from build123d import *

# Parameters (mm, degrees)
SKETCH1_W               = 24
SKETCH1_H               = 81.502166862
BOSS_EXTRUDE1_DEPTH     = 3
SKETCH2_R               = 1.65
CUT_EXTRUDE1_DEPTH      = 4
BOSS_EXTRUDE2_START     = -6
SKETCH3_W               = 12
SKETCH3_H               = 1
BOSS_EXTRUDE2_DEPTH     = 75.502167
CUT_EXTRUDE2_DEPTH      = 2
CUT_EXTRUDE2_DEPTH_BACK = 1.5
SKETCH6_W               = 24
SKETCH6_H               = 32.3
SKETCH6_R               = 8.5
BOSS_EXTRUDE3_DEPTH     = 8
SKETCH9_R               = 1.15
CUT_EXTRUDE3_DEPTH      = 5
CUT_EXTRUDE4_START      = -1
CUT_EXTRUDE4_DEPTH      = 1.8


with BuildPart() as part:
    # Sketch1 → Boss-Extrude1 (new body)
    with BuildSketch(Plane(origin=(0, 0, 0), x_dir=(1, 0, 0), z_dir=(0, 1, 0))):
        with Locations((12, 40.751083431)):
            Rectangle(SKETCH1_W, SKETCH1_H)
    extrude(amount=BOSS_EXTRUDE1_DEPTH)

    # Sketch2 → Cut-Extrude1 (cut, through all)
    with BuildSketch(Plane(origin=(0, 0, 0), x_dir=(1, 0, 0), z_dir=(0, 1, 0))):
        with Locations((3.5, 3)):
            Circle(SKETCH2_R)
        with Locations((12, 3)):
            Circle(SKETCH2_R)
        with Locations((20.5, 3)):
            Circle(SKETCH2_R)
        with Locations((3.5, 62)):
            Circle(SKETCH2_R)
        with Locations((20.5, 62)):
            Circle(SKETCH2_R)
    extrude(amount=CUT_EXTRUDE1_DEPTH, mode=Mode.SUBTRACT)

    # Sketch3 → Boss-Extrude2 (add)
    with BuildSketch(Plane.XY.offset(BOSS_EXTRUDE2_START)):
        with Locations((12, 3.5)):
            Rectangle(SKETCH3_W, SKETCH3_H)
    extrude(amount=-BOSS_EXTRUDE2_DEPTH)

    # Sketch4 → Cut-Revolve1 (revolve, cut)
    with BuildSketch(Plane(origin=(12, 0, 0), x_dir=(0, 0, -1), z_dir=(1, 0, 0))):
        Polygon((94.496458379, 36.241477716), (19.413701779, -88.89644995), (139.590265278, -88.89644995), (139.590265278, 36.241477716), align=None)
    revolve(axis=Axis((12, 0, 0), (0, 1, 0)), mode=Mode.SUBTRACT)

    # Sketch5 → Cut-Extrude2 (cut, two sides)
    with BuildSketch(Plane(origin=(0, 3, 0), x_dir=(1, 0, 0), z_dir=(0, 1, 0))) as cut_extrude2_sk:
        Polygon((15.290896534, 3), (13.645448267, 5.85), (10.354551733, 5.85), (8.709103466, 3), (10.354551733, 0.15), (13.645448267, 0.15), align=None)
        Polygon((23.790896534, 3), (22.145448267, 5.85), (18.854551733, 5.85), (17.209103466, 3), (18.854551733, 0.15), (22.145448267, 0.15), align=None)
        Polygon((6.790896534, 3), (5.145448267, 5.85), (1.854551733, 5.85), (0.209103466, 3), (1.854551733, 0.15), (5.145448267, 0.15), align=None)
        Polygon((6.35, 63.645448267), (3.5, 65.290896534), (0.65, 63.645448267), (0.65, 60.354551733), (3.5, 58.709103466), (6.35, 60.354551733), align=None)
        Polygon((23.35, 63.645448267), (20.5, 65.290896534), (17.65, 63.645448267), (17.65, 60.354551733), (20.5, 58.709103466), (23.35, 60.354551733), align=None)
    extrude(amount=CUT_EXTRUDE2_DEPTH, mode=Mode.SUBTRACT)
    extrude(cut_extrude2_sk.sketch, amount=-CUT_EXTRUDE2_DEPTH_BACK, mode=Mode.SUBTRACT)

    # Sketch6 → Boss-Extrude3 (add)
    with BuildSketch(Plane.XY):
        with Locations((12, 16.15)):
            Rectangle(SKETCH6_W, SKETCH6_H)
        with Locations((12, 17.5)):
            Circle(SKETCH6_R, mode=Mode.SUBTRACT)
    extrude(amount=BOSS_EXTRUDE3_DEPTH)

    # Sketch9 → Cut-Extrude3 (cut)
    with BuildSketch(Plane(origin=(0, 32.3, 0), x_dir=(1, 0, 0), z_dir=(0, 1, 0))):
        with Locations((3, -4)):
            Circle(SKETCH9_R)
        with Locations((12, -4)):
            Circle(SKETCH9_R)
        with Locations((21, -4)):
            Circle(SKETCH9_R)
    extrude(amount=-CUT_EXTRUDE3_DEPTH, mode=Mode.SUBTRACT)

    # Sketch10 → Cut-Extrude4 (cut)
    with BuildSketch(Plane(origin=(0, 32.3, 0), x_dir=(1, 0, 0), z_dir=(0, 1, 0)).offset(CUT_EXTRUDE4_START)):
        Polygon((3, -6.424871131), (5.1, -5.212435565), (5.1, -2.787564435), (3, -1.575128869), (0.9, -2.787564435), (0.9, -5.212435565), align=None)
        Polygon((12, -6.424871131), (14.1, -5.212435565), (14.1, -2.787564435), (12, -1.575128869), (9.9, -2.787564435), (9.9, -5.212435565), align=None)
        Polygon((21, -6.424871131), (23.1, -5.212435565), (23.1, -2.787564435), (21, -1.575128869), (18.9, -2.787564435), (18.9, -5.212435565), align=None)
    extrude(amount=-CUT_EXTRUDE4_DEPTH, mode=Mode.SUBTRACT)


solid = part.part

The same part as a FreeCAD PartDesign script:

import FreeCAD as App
import Part
import Sketcher
from FreeCAD import Vector
Q = App.Units.Quantity

doc = App.newDocument("Part")
params = doc.addObject("Spreadsheet::Sheet", "Params")
for row, (alias, value) in enumerate([
    ("sketch1_width", "24 mm"),
    ("pad1_length", "3 mm"),
    ("sketch2_diameter", "3.3 mm"),
    ("sketch3_width", "12 mm"),
    ("sketch3_height", "1 mm"),
    ("pad2_length", "75.502167 mm"),
    ("groove_angle", "360 deg"),
    ("pocket2_length", "2 mm"),
    ("pocket2_length2", "1.5 mm"),
    ("sketch6_diameter", "17 mm"),
    ("sketch6_width", "24 mm"),
    ("sketch6_height", "32.3 mm"),
    ("pad3_length", "8 mm"),
    ("sketch7_diameter", "2.3 mm"),
    ("pocket3_length", "5 mm"),
    ("pocket4_length", "1.8 mm"),
], start=1):
    params.set(f"A{row}", alias)
    params.set(f"B{row}", "=" + value)
    params.setAlias(f"B{row}", alias)

body = doc.addObject("PartDesign::Body", "Body")

# Sketch on XZ plane
sketch1 = doc.addObject("Sketcher::SketchObject", "Sketch")
body.addObject(sketch1)
sketch1.AttachmentSupport = (doc.XZ_Plane, [""])
sketch1.MapMode = "FlatFace"
sketch1.addGeometry(Part.LineSegment(Vector(0, -82, 0), Vector(0, 0, 0)), False)
sketch1.addGeometry(Part.LineSegment(Vector(0, 0, 0), Vector(24, 0, 0)), False)
sketch1.addGeometry(Part.LineSegment(Vector(24, 0, 0), Vector(24, -82, 0)), False)
sketch1.addGeometry(Part.LineSegment(Vector(24, -82, 0), Vector(0, -82, 0)), False)
sketch1.addConstraint(Sketcher.Constraint("Coincident", 0, 2, 1, 1))
sketch1.addConstraint(Sketcher.Constraint("Coincident", 1, 2, 2, 1))
sketch1.addConstraint(Sketcher.Constraint("Coincident", 2, 2, 3, 1))
sketch1.addConstraint(Sketcher.Constraint("Coincident", 3, 2, 0, 1))
sketch1.addConstraint(Sketcher.Constraint("Vertical", 0))
sketch1.addConstraint(Sketcher.Constraint("Horizontal", 1))
sketch1.addConstraint(Sketcher.Constraint("Vertical", 2))
sketch1.addConstraint(Sketcher.Constraint("Horizontal", 3))
sketch1.addConstraint(Sketcher.Constraint("Coincident", 0, 2, -1, 1))
sketch1.addConstraint(Sketcher.Constraint("DistanceX", 1, 1, 1, 2, 24.0))
sketch1.addConstraint(Sketcher.Constraint("DistanceY", 0, 1, 0, 2, 81.502167))
sketch1.setExpression("Constraints[9]", "Params.sketch1_width")
pad1 = doc.addObject("PartDesign::Pad", "Pad")
body.addObject(pad1)
pad1.Profile = sketch1
pad1.setExpression("Length", "Params.pad1_length")
pad1.Reversed = True

# Sketch on XZ plane
sketch2 = doc.addObject("Sketcher::SketchObject", "Sketch001")
body.addObject(sketch2)
sketch2.AttachmentSupport = (doc.XZ_Plane, [""])
sketch2.MapMode = "FlatFace"
sketch2.addGeometry(Part.Circle(Vector(3.5, -3, 0), Vector(0, 0, 1), 1.6), False)
sketch2.addGeometry(Part.Circle(Vector(12, -3, 0), Vector(0, 0, 1), 1.6), False)
sketch2.addGeometry(Part.Circle(Vector(20.5, -3, 0), Vector(0, 0, 1), 1.6), False)
sketch2.addGeometry(Part.Circle(Vector(3.5, -62, 0), Vector(0, 0, 1), 1.6), False)
sketch2.addGeometry(Part.Circle(Vector(20.5, -62, 0), Vector(0, 0, 1), 1.6), False)
sketch2.addConstraint(Sketcher.Constraint("Equal", 0, 1))
sketch2.addConstraint(Sketcher.Constraint("Equal", 1, 2))
sketch2.addConstraint(Sketcher.Constraint("Equal", 2, 3))
sketch2.addConstraint(Sketcher.Constraint("Equal", 3, 4))
sketch2.addConstraint(Sketcher.Constraint("Horizontal", 0, 3, 1, 3))
sketch2.addConstraint(Sketcher.Constraint("Horizontal", 1, 3, 2, 3))
sketch2.addConstraint(Sketcher.Constraint("Horizontal", 3, 3, 4, 3))
sketch2.addConstraint(Sketcher.Constraint("Vertical", 0, 3, 3, 3))
sketch2.addConstraint(Sketcher.Constraint("Vertical", 2, 3, 4, 3))
sketch2.addConstraint(Sketcher.Constraint("Diameter", 0, 3.3))
sketch2.addConstraint(Sketcher.Constraint("DistanceY", 0, 3, -1, 1, 3.0))
sketch2.addConstraint(Sketcher.Constraint("DistanceX", -1, 1, 1, 3, 12.0))
sketch2.addConstraint(Sketcher.Constraint("DistanceY", 3, 3, -1, 1, 62.0))
sketch2.addConstraint(Sketcher.Constraint("DistanceX", 0, 3, 2, 3, 17.0))
sketch2.addConstraint(Sketcher.Constraint("DistanceX", -1, 1, 0, 3, 3.5))
sketch2.setExpression("Constraints[9]", "Params.sketch2_diameter")
pocket1 = doc.addObject("PartDesign::Pocket", "Pocket")
body.addObject(pocket1)
pocket1.Profile = sketch2
pocket1.Type = "ThroughAll"

# Sketch on XY plane
sketch3 = doc.addObject("Sketcher::SketchObject", "Sketch002")
body.addObject(sketch3)
sketch3.AttachmentSupport = (doc.XY_Plane, [""])
sketch3.MapMode = "FlatFace"
sketch3.AttachmentOffset = App.Placement(Vector(0, 0, -6), App.Rotation())
sketch3.addGeometry(Part.LineSegment(Vector(6, 4, 0), Vector(6, 3, 0)), False)
sketch3.addGeometry(Part.LineSegment(Vector(6, 3, 0), Vector(18, 3, 0)), False)
sketch3.addGeometry(Part.LineSegment(Vector(18, 3, 0), Vector(18, 4, 0)), False)
sketch3.addGeometry(Part.LineSegment(Vector(18, 4, 0), Vector(6, 4, 0)), False)
sketch3.addConstraint(Sketcher.Constraint("Coincident", 0, 2, 1, 1))
sketch3.addConstraint(Sketcher.Constraint("Coincident", 1, 2, 2, 1))
sketch3.addConstraint(Sketcher.Constraint("Coincident", 2, 2, 3, 1))
sketch3.addConstraint(Sketcher.Constraint("Coincident", 3, 2, 0, 1))
sketch3.addConstraint(Sketcher.Constraint("Vertical", 0))
sketch3.addConstraint(Sketcher.Constraint("Horizontal", 1))
sketch3.addConstraint(Sketcher.Constraint("Vertical", 2))
sketch3.addConstraint(Sketcher.Constraint("Horizontal", 3))
sketch3.addConstraint(Sketcher.Constraint("DistanceX", 1, 1, 1, 2, 12.0))
sketch3.addConstraint(Sketcher.Constraint("DistanceY", 0, 2, 0, 1, 1.0))
sketch3.addConstraint(Sketcher.Constraint("DistanceX", -1, 1, 0, 2, 6.0))
sketch3.addConstraint(Sketcher.Constraint("DistanceY", -1, 1, 0, 2, 3.0))
sketch3.setExpression("Constraints[8]", "Params.sketch3_width")
sketch3.setExpression("Constraints[9]", "Params.sketch3_height")
pad2 = doc.addObject("PartDesign::Pad", "Pad001")
body.addObject(pad2)
pad2.Profile = sketch3
pad2.setExpression("Length", "Params.pad2_length")
pad2.Reversed = True

# Sketch on YZ plane
sketch4 = doc.addObject("Sketcher::SketchObject", "Sketch003")
body.addObject(sketch4)
sketch4.AttachmentSupport = (doc.YZ_Plane, [""])
sketch4.MapMode = "FlatFace"
sketch4.AttachmentOffset = App.Placement(Vector(0, 0, 12), App.Rotation())
sketch4.addGeometry(Part.LineSegment(Vector(36, -94, 0), Vector(-89, -19, 0)), False)
sketch4.addGeometry(Part.LineSegment(Vector(-89, -19, 0), Vector(-89, -140, 0)), False)
sketch4.addGeometry(Part.LineSegment(Vector(-89, -140, 0), Vector(36, -140, 0)), False)
sketch4.addGeometry(Part.LineSegment(Vector(36, -140, 0), Vector(36, -94, 0)), False)
sketch4.addConstraint(Sketcher.Constraint("Coincident", 0, 2, 1, 1))
sketch4.addConstraint(Sketcher.Constraint("Coincident", 1, 2, 2, 1))
sketch4.addConstraint(Sketcher.Constraint("Coincident", 2, 2, 3, 1))
sketch4.addConstraint(Sketcher.Constraint("Coincident", 3, 2, 0, 1))
sketch4.addConstraint(Sketcher.Constraint("Vertical", 1))
sketch4.addConstraint(Sketcher.Constraint("Horizontal", 2))
sketch4.addConstraint(Sketcher.Constraint("Vertical", 3))
sketch4.addConstraint(Sketcher.Constraint("DistanceY", 0, 2, -1, 1, 19.413702))
sketch4.addConstraint(Sketcher.Constraint("DistanceX", 2, 1, 2, 2, 125.137928))
sketch4.addConstraint(Sketcher.Constraint("DistanceY", 1, 2, 1, 1, 120.176563))
sketch4.addConstraint(Sketcher.Constraint("DistanceY", 3, 1, 3, 2, 45.093807))
sketch4.addConstraint(Sketcher.Constraint("DistanceX", 0, 2, -1, 1, 88.89645))
groove = doc.addObject("PartDesign::Groove", "Groove")
body.addObject(groove)
groove.Profile = sketch4
groove.ReferenceAxis = (sketch4, ["H_Axis"])
groove.setExpression("Angle", "Params.groove_angle")

# Sketch on XZ plane
sketch5 = doc.addObject("Sketcher::SketchObject", "Sketch004")
body.addObject(sketch5)
sketch5.AttachmentSupport = (doc.XZ_Plane, [""])
sketch5.MapMode = "FlatFace"
sketch5.AttachmentOffset = App.Placement(Vector(0, 0, -3), App.Rotation())
sketch5.addGeometry(Part.LineSegment(Vector(15.3, -3, 0), Vector(13.6, -5.8, 0)), False)
sketch5.addGeometry(Part.LineSegment(Vector(13.6, -5.8, 0), Vector(10.4, -5.8, 0)), False)
sketch5.addGeometry(Part.LineSegment(Vector(10.4, -5.8, 0), Vector(8.7, -3, 0)), False)
sketch5.addGeometry(Part.LineSegment(Vector(8.7, -3, 0), Vector(10.4, -0.1, 0)), False)
sketch5.addGeometry(Part.LineSegment(Vector(10.4, -0.1, 0), Vector(13.6, -0.1, 0)), False)
sketch5.addGeometry(Part.LineSegment(Vector(13.6, -0.1, 0), Vector(15.3, -3, 0)), False)
sketch5.addGeometry(Part.LineSegment(Vector(23.8, -3, 0), Vector(22.1, -5.8, 0)), False)
sketch5.addGeometry(Part.LineSegment(Vector(22.1, -5.8, 0), Vector(18.9, -5.8, 0)), False)
sketch5.addGeometry(Part.LineSegment(Vector(18.9, -5.8, 0), Vector(17.2, -3, 0)), False)
sketch5.addGeometry(Part.LineSegment(Vector(17.2, -3, 0), Vector(18.9, -0.1, 0)), False)
sketch5.addGeometry(Part.LineSegment(Vector(18.9, -0.1, 0), Vector(22.1, -0.1, 0)), False)
sketch5.addGeometry(Part.LineSegment(Vector(22.1, -0.1, 0), Vector(23.8, -3, 0)), False)
sketch5.addGeometry(Part.LineSegment(Vector(6.8, -3, 0), Vector(5.1, -5.8, 0)), False)
sketch5.addGeometry(Part.LineSegment(Vector(5.1, -5.8, 0), Vector(1.9, -5.8, 0)), False)
sketch5.addGeometry(Part.LineSegment(Vector(1.9, -5.8, 0), Vector(0.2, -3, 0)), False)
sketch5.addGeometry(Part.LineSegment(Vector(0.2, -3, 0), Vector(1.9, -0.1, 0)), False)
sketch5.addGeometry(Part.LineSegment(Vector(1.9, -0.1, 0), Vector(5.1, -0.1, 0)), False)
sketch5.addGeometry(Part.LineSegment(Vector(5.1, -0.1, 0), Vector(6.8, -3, 0)), False)
sketch5.addGeometry(Part.LineSegment(Vector(6.3, -63.6, 0), Vector(3.5, -65.3, 0)), False)
sketch5.addGeometry(Part.LineSegment(Vector(3.5, -65.3, 0), Vector(0.7, -63.6, 0)), False)
sketch5.addGeometry(Part.LineSegment(Vector(0.7, -63.6, 0), Vector(0.7, -60.4, 0)), False)
sketch5.addGeometry(Part.LineSegment(Vector(0.7, -60.4, 0), Vector(3.5, -58.7, 0)), False)
sketch5.addGeometry(Part.LineSegment(Vector(3.5, -58.7, 0), Vector(6.3, -60.4, 0)), False)
sketch5.addGeometry(Part.LineSegment(Vector(6.3, -60.4, 0), Vector(6.3, -63.6, 0)), False)
sketch5.addGeometry(Part.LineSegment(Vector(23.4, -63.6, 0), Vector(20.5, -65.3, 0)), False)
sketch5.addGeometry(Part.LineSegment(Vector(20.5, -65.3, 0), Vector(17.6, -63.6, 0)), False)
sketch5.addGeometry(Part.LineSegment(Vector(17.6, -63.6, 0), Vector(17.6, -60.4, 0)), False)
sketch5.addGeometry(Part.LineSegment(Vector(17.6, -60.4, 0), Vector(20.5, -58.7, 0)), False)
sketch5.addGeometry(Part.LineSegment(Vector(20.5, -58.7, 0), Vector(23.4, -60.4, 0)), False)
sketch5.addGeometry(Part.LineSegment(Vector(23.4, -60.4, 0), Vector(23.4, -63.6, 0)), False)
sketch5.addConstraint(Sketcher.Constraint("Coincident", 0, 2, 1, 1))
sketch5.addConstraint(Sketcher.Constraint("Coincident", 1, 2, 2, 1))
sketch5.addConstraint(Sketcher.Constraint("Coincident", 2, 2, 3, 1))
sketch5.addConstraint(Sketcher.Constraint("Coincident", 3, 2, 4, 1))
sketch5.addConstraint(Sketcher.Constraint("Coincident", 4, 2, 5, 1))
sketch5.addConstraint(Sketcher.Constraint("Coincident", 5, 2, 0, 1))
sketch5.addConstraint(Sketcher.Constraint("Coincident", 6, 2, 7, 1))
sketch5.addConstraint(Sketcher.Constraint("Coincident", 7, 2, 8, 1))
sketch5.addConstraint(Sketcher.Constraint("Coincident", 8, 2, 9, 1))
sketch5.addConstraint(Sketcher.Constraint("Coincident", 9, 2, 10, 1))
sketch5.addConstraint(Sketcher.Constraint("Coincident", 10, 2, 11, 1))
sketch5.addConstraint(Sketcher.Constraint("Coincident", 11, 2, 6, 1))
sketch5.addConstraint(Sketcher.Constraint("Coincident", 12, 2, 13, 1))
sketch5.addConstraint(Sketcher.Constraint("Coincident", 13, 2, 14, 1))
sketch5.addConstraint(Sketcher.Constraint("Coincident", 14, 2, 15, 1))
sketch5.addConstraint(Sketcher.Constraint("Coincident", 15, 2, 16, 1))
sketch5.addConstraint(Sketcher.Constraint("Coincident", 16, 2, 17, 1))
sketch5.addConstraint(Sketcher.Constraint("Coincident", 17, 2, 12, 1))
sketch5.addConstraint(Sketcher.Constraint("Coincident", 18, 2, 19, 1))
sketch5.addConstraint(Sketcher.Constraint("Coincident", 19, 2, 20, 1))
sketch5.addConstraint(Sketcher.Constraint("Coincident", 20, 2, 21, 1))
sketch5.addConstraint(Sketcher.Constraint("Coincident", 21, 2, 22, 1))
sketch5.addConstraint(Sketcher.Constraint("Coincident", 22, 2, 23, 1))
sketch5.addConstraint(Sketcher.Constraint("Coincident", 23, 2, 18, 1))
sketch5.addConstraint(Sketcher.Constraint("Coincident", 24, 2, 25, 1))
sketch5.addConstraint(Sketcher.Constraint("Coincident", 25, 2, 26, 1))
sketch5.addConstraint(Sketcher.Constraint("Coincident", 26, 2, 27, 1))
sketch5.addConstraint(Sketcher.Constraint("Coincident", 27, 2, 28, 1))
sketch5.addConstraint(Sketcher.Constraint("Coincident", 28, 2, 29, 1))
sketch5.addConstraint(Sketcher.Constraint("Coincident", 29, 2, 24, 1))
sketch5.addConstraint(Sketcher.Constraint("Horizontal", 1))
sketch5.addConstraint(Sketcher.Constraint("Horizontal", 4))
sketch5.addConstraint(Sketcher.Constraint("Horizontal", 7))
sketch5.addConstraint(Sketcher.Constraint("Horizontal", 10))
sketch5.addConstraint(Sketcher.Constraint("Horizontal", 13))
sketch5.addConstraint(Sketcher.Constraint("Horizontal", 16))
sketch5.addConstraint(Sketcher.Constraint("Vertical", 20))
sketch5.addConstraint(Sketcher.Constraint("Vertical", 23))
sketch5.addConstraint(Sketcher.Constraint("Vertical", 26))
sketch5.addConstraint(Sketcher.Constraint("Vertical", 29))
sketch5.addConstraint(Sketcher.Constraint("Parallel", 0, 3))
sketch5.addConstraint(Sketcher.Constraint("Parallel", 2, 5))
sketch5.addConstraint(Sketcher.Constraint("Parallel", 3, 6))
sketch5.addConstraint(Sketcher.Constraint("Parallel", 5, 8))
sketch5.addConstraint(Sketcher.Constraint("Parallel", 6, 9))
sketch5.addConstraint(Sketcher.Constraint("Parallel", 8, 11))
sketch5.addConstraint(Sketcher.Constraint("Parallel", 9, 12))
sketch5.addConstraint(Sketcher.Constraint("Parallel", 11, 14))
sketch5.addConstraint(Sketcher.Constraint("Parallel", 12, 15))
sketch5.addConstraint(Sketcher.Constraint("Parallel", 14, 17))
sketch5.addConstraint(Sketcher.Constraint("Perpendicular", 17, 18))
sketch5.addConstraint(Sketcher.Constraint("Perpendicular", 15, 19))
sketch5.addConstraint(Sketcher.Constraint("Parallel", 18, 21))
sketch5.addConstraint(Sketcher.Constraint("Parallel", 19, 22))
sketch5.addConstraint(Sketcher.Constraint("Parallel", 21, 24))
sketch5.addConstraint(Sketcher.Constraint("Parallel", 22, 25))
sketch5.addConstraint(Sketcher.Constraint("Parallel", 24, 27))
sketch5.addConstraint(Sketcher.Constraint("Parallel", 25, 28))
sketch5.addConstraint(Sketcher.Constraint("Horizontal", 2, 2, 5, 2))
sketch5.addConstraint(Sketcher.Constraint("Horizontal", 1, 2, 6, 2))
sketch5.addConstraint(Sketcher.Constraint("Horizontal", 5, 2, 8, 2))
sketch5.addConstraint(Sketcher.Constraint("Horizontal", 4, 2, 9, 2))
sketch5.addConstraint(Sketcher.Constraint("Horizontal", 8, 2, 11, 2))
sketch5.addConstraint(Sketcher.Constraint("Horizontal", 7, 2, 12, 2))
sketch5.addConstraint(Sketcher.Constraint("Horizontal", 11, 2, 14, 2))
sketch5.addConstraint(Sketcher.Constraint("Horizontal", 10, 2, 15, 2))
sketch5.addConstraint(Sketcher.Constraint("Horizontal", 14, 2, 17, 2))
sketch5.addConstraint(Sketcher.Constraint("Horizontal", 20, 2, 22, 2))
sketch5.addConstraint(Sketcher.Constraint("Horizontal", 19, 2, 23, 2))
sketch5.addConstraint(Sketcher.Constraint("Horizontal", 18, 2, 24, 2))
sketch5.addConstraint(Sketcher.Constraint("Horizontal", 23, 2, 25, 2))
sketch5.addConstraint(Sketcher.Constraint("Horizontal", 22, 2, 26, 2))
sketch5.addConstraint(Sketcher.Constraint("Horizontal", 21, 2, 27, 2))
sketch5.addConstraint(Sketcher.Constraint("Horizontal", 26, 2, 28, 2))
sketch5.addConstraint(Sketcher.Constraint("Vertical", 1, 2, 3, 2))
sketch5.addConstraint(Sketcher.Constraint("Vertical", 0, 2, 4, 2))
sketch5.addConstraint(Sketcher.Constraint("Equal", 4, 7))
sketch5.addConstraint(Sketcher.Constraint("Equal", 10, 13))
sketch5.addConstraint(Sketcher.Constraint("Equal", 16, 20))
sketch5.addConstraint(Sketcher.Constraint("Equal", 17, 18))
sketch5.addConstraint(Sketcher.Constraint("Angle", 0, Q("-120 deg")))
sketch5.addConstraint(Sketcher.Constraint("DistanceY", 2, 2, -1, 1, 3.0))
sketch5.addConstraint(Sketcher.Constraint("DistanceX", 18, 2, 24, 2, 17.0))
sketch5.addConstraint(Sketcher.Constraint("DistanceX", -1, 1, 18, 2, 3.5))
sketch5.addConstraint(Sketcher.Constraint("DistanceY", 1, 2, 3, 2, 5.7))
sketch5.addConstraint(Sketcher.Constraint("DistanceX", 0, 2, 6, 2, 8.5))
sketch5.addConstraint(Sketcher.Constraint("DistanceX", 12, 2, 0, 2, 8.5))
sketch5.addConstraint(Sketcher.Constraint("DistanceX", 1, 2, 1, 1, 3.290897))
sketch5.addConstraint(Sketcher.Constraint("DistanceX", -1, 1, 0, 2, 13.645448))
sketch5.addConstraint(Sketcher.Constraint("DistanceY", 19, 2, -1, 1, 63.645448))
pocket2 = doc.addObject("PartDesign::Pocket", "Pocket001")
body.addObject(pocket2)
pocket2.Profile = sketch5
pocket2.Type = "TwoLengths"
pocket2.setExpression("Length", "Params.pocket2_length")
pocket2.setExpression("Length2", "Params.pocket2_length2")

# Sketch on XY plane
sketch6 = doc.addObject("Sketcher::SketchObject", "Sketch005")
body.addObject(sketch6)
sketch6.AttachmentSupport = (doc.XY_Plane, [""])
sketch6.MapMode = "FlatFace"
sketch6.addGeometry(Part.LineSegment(Vector(0, 32, 0), Vector(0, 0, 0)), False)
sketch6.addGeometry(Part.LineSegment(Vector(0, 0, 0), Vector(24, 0, 0)), False)
sketch6.addGeometry(Part.LineSegment(Vector(24, 0, 0), Vector(24, 32, 0)), False)
sketch6.addGeometry(Part.LineSegment(Vector(24, 32, 0), Vector(0, 32, 0)), False)
sketch6.addGeometry(Part.Circle(Vector(12, 18, 0), Vector(0, 0, 1), 8), False)
sketch6.addConstraint(Sketcher.Constraint("Coincident", 0, 2, 1, 1))
sketch6.addConstraint(Sketcher.Constraint("Coincident", 1, 2, 2, 1))
sketch6.addConstraint(Sketcher.Constraint("Coincident", 2, 2, 3, 1))
sketch6.addConstraint(Sketcher.Constraint("Coincident", 3, 2, 0, 1))
sketch6.addConstraint(Sketcher.Constraint("Vertical", 0))
sketch6.addConstraint(Sketcher.Constraint("Horizontal", 1))
sketch6.addConstraint(Sketcher.Constraint("Vertical", 2))
sketch6.addConstraint(Sketcher.Constraint("Horizontal", 3))
sketch6.addConstraint(Sketcher.Constraint("Coincident", 0, 2, -1, 1))
sketch6.addConstraint(Sketcher.Constraint("Diameter", 4, 17.0))
sketch6.addConstraint(Sketcher.Constraint("DistanceX", 1, 1, 1, 2, 24.0))
sketch6.addConstraint(Sketcher.Constraint("DistanceY", 0, 2, 0, 1, 32.3))
sketch6.addConstraint(Sketcher.Constraint("DistanceX", -1, 1, 4, 3, 12.0))
sketch6.addConstraint(Sketcher.Constraint("DistanceY", -1, 1, 4, 3, 17.5))
sketch6.setExpression("Constraints[9]", "Params.sketch6_diameter")
sketch6.setExpression("Constraints[10]", "Params.sketch6_width")
sketch6.setExpression("Constraints[11]", "Params.sketch6_height")
pad3 = doc.addObject("PartDesign::Pad", "Pad002")
body.addObject(pad3)
pad3.Profile = sketch6
pad3.setExpression("Length", "Params.pad3_length")

# Sketch on XZ plane
sketch7 = doc.addObject("Sketcher::SketchObject", "Sketch006")
body.addObject(sketch7)
sketch7.AttachmentSupport = (doc.XZ_Plane, [""])
sketch7.MapMode = "FlatFace"
sketch7.AttachmentOffset = App.Placement(Vector(0, 0, -32.3), App.Rotation())
sketch7.addGeometry(Part.Circle(Vector(3, 4, 0), Vector(0, 0, 1), 1.1), False)
sketch7.addGeometry(Part.Circle(Vector(12, 4, 0), Vector(0, 0, 1), 1.1), False)
sketch7.addGeometry(Part.Circle(Vector(21, 4, 0), Vector(0, 0, 1), 1.1), False)
sketch7.addConstraint(Sketcher.Constraint("Equal", 0, 1))
sketch7.addConstraint(Sketcher.Constraint("Equal", 1, 2))
sketch7.addConstraint(Sketcher.Constraint("Horizontal", 0, 3, 1, 3))
sketch7.addConstraint(Sketcher.Constraint("Horizontal", 1, 3, 2, 3))
sketch7.addConstraint(Sketcher.Constraint("Diameter", 0, 2.3))
sketch7.addConstraint(Sketcher.Constraint("DistanceX", -1, 1, 0, 3, 3.0))
sketch7.addConstraint(Sketcher.Constraint("DistanceY", -1, 1, 0, 3, 4.0))
sketch7.addConstraint(Sketcher.Constraint("DistanceX", -1, 1, 1, 3, 12.0))
sketch7.addConstraint(Sketcher.Constraint("DistanceX", -1, 1, 2, 3, 21.0))
sketch7.setExpression("Constraints[4]", "Params.sketch7_diameter")
pocket3 = doc.addObject("PartDesign::Pocket", "Pocket002")
body.addObject(pocket3)
pocket3.Profile = sketch7
pocket3.setExpression("Length", "Params.pocket3_length")
pocket3.Reversed = True

# Sketch on XZ plane
sketch8 = doc.addObject("Sketcher::SketchObject", "Sketch007")
body.addObject(sketch8)
sketch8.AttachmentSupport = (doc.XZ_Plane, [""])
sketch8.MapMode = "FlatFace"
sketch8.AttachmentOffset = App.Placement(Vector(0, 0, -31.3), App.Rotation())
sketch8.addGeometry(Part.LineSegment(Vector(3, 6.4, 0), Vector(5.1, 5.2, 0)), False)
sketch8.addGeometry(Part.LineSegment(Vector(5.1, 5.2, 0), Vector(5.1, 2.8, 0)), False)
sketch8.addGeometry(Part.LineSegment(Vector(5.1, 2.8, 0), Vector(3, 1.6, 0)), False)
sketch8.addGeometry(Part.LineSegment(Vector(3, 1.6, 0), Vector(0.9, 2.8, 0)), False)
sketch8.addGeometry(Part.LineSegment(Vector(0.9, 2.8, 0), Vector(0.9, 5.2, 0)), False)
sketch8.addGeometry(Part.LineSegment(Vector(0.9, 5.2, 0), Vector(3, 6.4, 0)), False)
sketch8.addGeometry(Part.LineSegment(Vector(12, 6.4, 0), Vector(14.1, 5.2, 0)), False)
sketch8.addGeometry(Part.LineSegment(Vector(14.1, 5.2, 0), Vector(14.1, 2.8, 0)), False)
sketch8.addGeometry(Part.LineSegment(Vector(14.1, 2.8, 0), Vector(12, 1.6, 0)), False)
sketch8.addGeometry(Part.LineSegment(Vector(12, 1.6, 0), Vector(9.9, 2.8, 0)), False)
sketch8.addGeometry(Part.LineSegment(Vector(9.9, 2.8, 0), Vector(9.9, 5.2, 0)), False)
sketch8.addGeometry(Part.LineSegment(Vector(9.9, 5.2, 0), Vector(12, 6.4, 0)), False)
sketch8.addGeometry(Part.LineSegment(Vector(21, 6.4, 0), Vector(23.1, 5.2, 0)), False)
sketch8.addGeometry(Part.LineSegment(Vector(23.1, 5.2, 0), Vector(23.1, 2.8, 0)), False)
sketch8.addGeometry(Part.LineSegment(Vector(23.1, 2.8, 0), Vector(21, 1.6, 0)), False)
sketch8.addGeometry(Part.LineSegment(Vector(21, 1.6, 0), Vector(18.9, 2.8, 0)), False)
sketch8.addGeometry(Part.LineSegment(Vector(18.9, 2.8, 0), Vector(18.9, 5.2, 0)), False)
sketch8.addGeometry(Part.LineSegment(Vector(18.9, 5.2, 0), Vector(21, 6.4, 0)), False)
sketch8.addConstraint(Sketcher.Constraint("Coincident", 0, 2, 1, 1))
sketch8.addConstraint(Sketcher.Constraint("Coincident", 1, 2, 2, 1))
sketch8.addConstraint(Sketcher.Constraint("Coincident", 2, 2, 3, 1))
sketch8.addConstraint(Sketcher.Constraint("Coincident", 3, 2, 4, 1))
sketch8.addConstraint(Sketcher.Constraint("Coincident", 4, 2, 5, 1))
sketch8.addConstraint(Sketcher.Constraint("Coincident", 5, 2, 0, 1))
sketch8.addConstraint(Sketcher.Constraint("Coincident", 6, 2, 7, 1))
sketch8.addConstraint(Sketcher.Constraint("Coincident", 7, 2, 8, 1))
sketch8.addConstraint(Sketcher.Constraint("Coincident", 8, 2, 9, 1))
sketch8.addConstraint(Sketcher.Constraint("Coincident", 9, 2, 10, 1))
sketch8.addConstraint(Sketcher.Constraint("Coincident", 10, 2, 11, 1))
sketch8.addConstraint(Sketcher.Constraint("Coincident", 11, 2, 6, 1))
sketch8.addConstraint(Sketcher.Constraint("Coincident", 12, 2, 13, 1))
sketch8.addConstraint(Sketcher.Constraint("Coincident", 13, 2, 14, 1))
sketch8.addConstraint(Sketcher.Constraint("Coincident", 14, 2, 15, 1))
sketch8.addConstraint(Sketcher.Constraint("Coincident", 15, 2, 16, 1))
sketch8.addConstraint(Sketcher.Constraint("Coincident", 16, 2, 17, 1))
sketch8.addConstraint(Sketcher.Constraint("Coincident", 17, 2, 12, 1))
sketch8.addConstraint(Sketcher.Constraint("Vertical", 1))
sketch8.addConstraint(Sketcher.Constraint("Vertical", 4))
sketch8.addConstraint(Sketcher.Constraint("Vertical", 7))
sketch8.addConstraint(Sketcher.Constraint("Vertical", 10))
sketch8.addConstraint(Sketcher.Constraint("Vertical", 13))
sketch8.addConstraint(Sketcher.Constraint("Vertical", 16))
sketch8.addConstraint(Sketcher.Constraint("Parallel", 0, 3))
sketch8.addConstraint(Sketcher.Constraint("Parallel", 2, 5))
sketch8.addConstraint(Sketcher.Constraint("Parallel", 3, 6))
sketch8.addConstraint(Sketcher.Constraint("Parallel", 5, 8))
sketch8.addConstraint(Sketcher.Constraint("Parallel", 6, 9))
sketch8.addConstraint(Sketcher.Constraint("Parallel", 8, 11))
sketch8.addConstraint(Sketcher.Constraint("Parallel", 9, 12))
sketch8.addConstraint(Sketcher.Constraint("Parallel", 11, 14))
sketch8.addConstraint(Sketcher.Constraint("Parallel", 12, 15))
sketch8.addConstraint(Sketcher.Constraint("Parallel", 14, 17))
sketch8.addConstraint(Sketcher.Constraint("Horizontal", 1, 2, 3, 2))
sketch8.addConstraint(Sketcher.Constraint("Horizontal", 0, 2, 4, 2))
sketch8.addConstraint(Sketcher.Constraint("Horizontal", 4, 2, 6, 2))
sketch8.addConstraint(Sketcher.Constraint("Horizontal", 3, 2, 7, 2))
sketch8.addConstraint(Sketcher.Constraint("Horizontal", 2, 2, 8, 2))
sketch8.addConstraint(Sketcher.Constraint("Horizontal", 7, 2, 9, 2))
sketch8.addConstraint(Sketcher.Constraint("Horizontal", 6, 2, 10, 2))
sketch8.addConstraint(Sketcher.Constraint("Horizontal", 10, 2, 12, 2))
sketch8.addConstraint(Sketcher.Constraint("Horizontal", 9, 2, 13, 2))
sketch8.addConstraint(Sketcher.Constraint("Horizontal", 8, 2, 14, 2))
sketch8.addConstraint(Sketcher.Constraint("Horizontal", 13, 2, 15, 2))
sketch8.addConstraint(Sketcher.Constraint("Horizontal", 12, 2, 16, 2))
sketch8.addConstraint(Sketcher.Constraint("Vertical", 2, 2, 5, 2))
sketch8.addConstraint(Sketcher.Constraint("Angle", 0, Q("-30 deg")))
sketch8.addConstraint(Sketcher.Constraint("DistanceX", -1, 1, 2, 2, 3.0))
sketch8.addConstraint(Sketcher.Constraint("DistanceX", -1, 1, 8, 2, 12.0))
sketch8.addConstraint(Sketcher.Constraint("DistanceX", -1, 1, 14, 2, 21.0))
sketch8.addConstraint(Sketcher.Constraint("DistanceX", -1, 1, 0, 2, 5.1))
sketch8.addConstraint(Sketcher.Constraint("DistanceY", 1, 2, 1, 1, 2.424871))
sketch8.addConstraint(Sketcher.Constraint("DistanceY", -1, 1, 2, 2, 1.575129))
pocket4 = doc.addObject("PartDesign::Pocket", "Pocket003")
body.addObject(pocket4)
pocket4.Profile = sketch8
pocket4.setExpression("Length", "Params.pocket4_length")
pocket4.Reversed = True

doc.recompute()
